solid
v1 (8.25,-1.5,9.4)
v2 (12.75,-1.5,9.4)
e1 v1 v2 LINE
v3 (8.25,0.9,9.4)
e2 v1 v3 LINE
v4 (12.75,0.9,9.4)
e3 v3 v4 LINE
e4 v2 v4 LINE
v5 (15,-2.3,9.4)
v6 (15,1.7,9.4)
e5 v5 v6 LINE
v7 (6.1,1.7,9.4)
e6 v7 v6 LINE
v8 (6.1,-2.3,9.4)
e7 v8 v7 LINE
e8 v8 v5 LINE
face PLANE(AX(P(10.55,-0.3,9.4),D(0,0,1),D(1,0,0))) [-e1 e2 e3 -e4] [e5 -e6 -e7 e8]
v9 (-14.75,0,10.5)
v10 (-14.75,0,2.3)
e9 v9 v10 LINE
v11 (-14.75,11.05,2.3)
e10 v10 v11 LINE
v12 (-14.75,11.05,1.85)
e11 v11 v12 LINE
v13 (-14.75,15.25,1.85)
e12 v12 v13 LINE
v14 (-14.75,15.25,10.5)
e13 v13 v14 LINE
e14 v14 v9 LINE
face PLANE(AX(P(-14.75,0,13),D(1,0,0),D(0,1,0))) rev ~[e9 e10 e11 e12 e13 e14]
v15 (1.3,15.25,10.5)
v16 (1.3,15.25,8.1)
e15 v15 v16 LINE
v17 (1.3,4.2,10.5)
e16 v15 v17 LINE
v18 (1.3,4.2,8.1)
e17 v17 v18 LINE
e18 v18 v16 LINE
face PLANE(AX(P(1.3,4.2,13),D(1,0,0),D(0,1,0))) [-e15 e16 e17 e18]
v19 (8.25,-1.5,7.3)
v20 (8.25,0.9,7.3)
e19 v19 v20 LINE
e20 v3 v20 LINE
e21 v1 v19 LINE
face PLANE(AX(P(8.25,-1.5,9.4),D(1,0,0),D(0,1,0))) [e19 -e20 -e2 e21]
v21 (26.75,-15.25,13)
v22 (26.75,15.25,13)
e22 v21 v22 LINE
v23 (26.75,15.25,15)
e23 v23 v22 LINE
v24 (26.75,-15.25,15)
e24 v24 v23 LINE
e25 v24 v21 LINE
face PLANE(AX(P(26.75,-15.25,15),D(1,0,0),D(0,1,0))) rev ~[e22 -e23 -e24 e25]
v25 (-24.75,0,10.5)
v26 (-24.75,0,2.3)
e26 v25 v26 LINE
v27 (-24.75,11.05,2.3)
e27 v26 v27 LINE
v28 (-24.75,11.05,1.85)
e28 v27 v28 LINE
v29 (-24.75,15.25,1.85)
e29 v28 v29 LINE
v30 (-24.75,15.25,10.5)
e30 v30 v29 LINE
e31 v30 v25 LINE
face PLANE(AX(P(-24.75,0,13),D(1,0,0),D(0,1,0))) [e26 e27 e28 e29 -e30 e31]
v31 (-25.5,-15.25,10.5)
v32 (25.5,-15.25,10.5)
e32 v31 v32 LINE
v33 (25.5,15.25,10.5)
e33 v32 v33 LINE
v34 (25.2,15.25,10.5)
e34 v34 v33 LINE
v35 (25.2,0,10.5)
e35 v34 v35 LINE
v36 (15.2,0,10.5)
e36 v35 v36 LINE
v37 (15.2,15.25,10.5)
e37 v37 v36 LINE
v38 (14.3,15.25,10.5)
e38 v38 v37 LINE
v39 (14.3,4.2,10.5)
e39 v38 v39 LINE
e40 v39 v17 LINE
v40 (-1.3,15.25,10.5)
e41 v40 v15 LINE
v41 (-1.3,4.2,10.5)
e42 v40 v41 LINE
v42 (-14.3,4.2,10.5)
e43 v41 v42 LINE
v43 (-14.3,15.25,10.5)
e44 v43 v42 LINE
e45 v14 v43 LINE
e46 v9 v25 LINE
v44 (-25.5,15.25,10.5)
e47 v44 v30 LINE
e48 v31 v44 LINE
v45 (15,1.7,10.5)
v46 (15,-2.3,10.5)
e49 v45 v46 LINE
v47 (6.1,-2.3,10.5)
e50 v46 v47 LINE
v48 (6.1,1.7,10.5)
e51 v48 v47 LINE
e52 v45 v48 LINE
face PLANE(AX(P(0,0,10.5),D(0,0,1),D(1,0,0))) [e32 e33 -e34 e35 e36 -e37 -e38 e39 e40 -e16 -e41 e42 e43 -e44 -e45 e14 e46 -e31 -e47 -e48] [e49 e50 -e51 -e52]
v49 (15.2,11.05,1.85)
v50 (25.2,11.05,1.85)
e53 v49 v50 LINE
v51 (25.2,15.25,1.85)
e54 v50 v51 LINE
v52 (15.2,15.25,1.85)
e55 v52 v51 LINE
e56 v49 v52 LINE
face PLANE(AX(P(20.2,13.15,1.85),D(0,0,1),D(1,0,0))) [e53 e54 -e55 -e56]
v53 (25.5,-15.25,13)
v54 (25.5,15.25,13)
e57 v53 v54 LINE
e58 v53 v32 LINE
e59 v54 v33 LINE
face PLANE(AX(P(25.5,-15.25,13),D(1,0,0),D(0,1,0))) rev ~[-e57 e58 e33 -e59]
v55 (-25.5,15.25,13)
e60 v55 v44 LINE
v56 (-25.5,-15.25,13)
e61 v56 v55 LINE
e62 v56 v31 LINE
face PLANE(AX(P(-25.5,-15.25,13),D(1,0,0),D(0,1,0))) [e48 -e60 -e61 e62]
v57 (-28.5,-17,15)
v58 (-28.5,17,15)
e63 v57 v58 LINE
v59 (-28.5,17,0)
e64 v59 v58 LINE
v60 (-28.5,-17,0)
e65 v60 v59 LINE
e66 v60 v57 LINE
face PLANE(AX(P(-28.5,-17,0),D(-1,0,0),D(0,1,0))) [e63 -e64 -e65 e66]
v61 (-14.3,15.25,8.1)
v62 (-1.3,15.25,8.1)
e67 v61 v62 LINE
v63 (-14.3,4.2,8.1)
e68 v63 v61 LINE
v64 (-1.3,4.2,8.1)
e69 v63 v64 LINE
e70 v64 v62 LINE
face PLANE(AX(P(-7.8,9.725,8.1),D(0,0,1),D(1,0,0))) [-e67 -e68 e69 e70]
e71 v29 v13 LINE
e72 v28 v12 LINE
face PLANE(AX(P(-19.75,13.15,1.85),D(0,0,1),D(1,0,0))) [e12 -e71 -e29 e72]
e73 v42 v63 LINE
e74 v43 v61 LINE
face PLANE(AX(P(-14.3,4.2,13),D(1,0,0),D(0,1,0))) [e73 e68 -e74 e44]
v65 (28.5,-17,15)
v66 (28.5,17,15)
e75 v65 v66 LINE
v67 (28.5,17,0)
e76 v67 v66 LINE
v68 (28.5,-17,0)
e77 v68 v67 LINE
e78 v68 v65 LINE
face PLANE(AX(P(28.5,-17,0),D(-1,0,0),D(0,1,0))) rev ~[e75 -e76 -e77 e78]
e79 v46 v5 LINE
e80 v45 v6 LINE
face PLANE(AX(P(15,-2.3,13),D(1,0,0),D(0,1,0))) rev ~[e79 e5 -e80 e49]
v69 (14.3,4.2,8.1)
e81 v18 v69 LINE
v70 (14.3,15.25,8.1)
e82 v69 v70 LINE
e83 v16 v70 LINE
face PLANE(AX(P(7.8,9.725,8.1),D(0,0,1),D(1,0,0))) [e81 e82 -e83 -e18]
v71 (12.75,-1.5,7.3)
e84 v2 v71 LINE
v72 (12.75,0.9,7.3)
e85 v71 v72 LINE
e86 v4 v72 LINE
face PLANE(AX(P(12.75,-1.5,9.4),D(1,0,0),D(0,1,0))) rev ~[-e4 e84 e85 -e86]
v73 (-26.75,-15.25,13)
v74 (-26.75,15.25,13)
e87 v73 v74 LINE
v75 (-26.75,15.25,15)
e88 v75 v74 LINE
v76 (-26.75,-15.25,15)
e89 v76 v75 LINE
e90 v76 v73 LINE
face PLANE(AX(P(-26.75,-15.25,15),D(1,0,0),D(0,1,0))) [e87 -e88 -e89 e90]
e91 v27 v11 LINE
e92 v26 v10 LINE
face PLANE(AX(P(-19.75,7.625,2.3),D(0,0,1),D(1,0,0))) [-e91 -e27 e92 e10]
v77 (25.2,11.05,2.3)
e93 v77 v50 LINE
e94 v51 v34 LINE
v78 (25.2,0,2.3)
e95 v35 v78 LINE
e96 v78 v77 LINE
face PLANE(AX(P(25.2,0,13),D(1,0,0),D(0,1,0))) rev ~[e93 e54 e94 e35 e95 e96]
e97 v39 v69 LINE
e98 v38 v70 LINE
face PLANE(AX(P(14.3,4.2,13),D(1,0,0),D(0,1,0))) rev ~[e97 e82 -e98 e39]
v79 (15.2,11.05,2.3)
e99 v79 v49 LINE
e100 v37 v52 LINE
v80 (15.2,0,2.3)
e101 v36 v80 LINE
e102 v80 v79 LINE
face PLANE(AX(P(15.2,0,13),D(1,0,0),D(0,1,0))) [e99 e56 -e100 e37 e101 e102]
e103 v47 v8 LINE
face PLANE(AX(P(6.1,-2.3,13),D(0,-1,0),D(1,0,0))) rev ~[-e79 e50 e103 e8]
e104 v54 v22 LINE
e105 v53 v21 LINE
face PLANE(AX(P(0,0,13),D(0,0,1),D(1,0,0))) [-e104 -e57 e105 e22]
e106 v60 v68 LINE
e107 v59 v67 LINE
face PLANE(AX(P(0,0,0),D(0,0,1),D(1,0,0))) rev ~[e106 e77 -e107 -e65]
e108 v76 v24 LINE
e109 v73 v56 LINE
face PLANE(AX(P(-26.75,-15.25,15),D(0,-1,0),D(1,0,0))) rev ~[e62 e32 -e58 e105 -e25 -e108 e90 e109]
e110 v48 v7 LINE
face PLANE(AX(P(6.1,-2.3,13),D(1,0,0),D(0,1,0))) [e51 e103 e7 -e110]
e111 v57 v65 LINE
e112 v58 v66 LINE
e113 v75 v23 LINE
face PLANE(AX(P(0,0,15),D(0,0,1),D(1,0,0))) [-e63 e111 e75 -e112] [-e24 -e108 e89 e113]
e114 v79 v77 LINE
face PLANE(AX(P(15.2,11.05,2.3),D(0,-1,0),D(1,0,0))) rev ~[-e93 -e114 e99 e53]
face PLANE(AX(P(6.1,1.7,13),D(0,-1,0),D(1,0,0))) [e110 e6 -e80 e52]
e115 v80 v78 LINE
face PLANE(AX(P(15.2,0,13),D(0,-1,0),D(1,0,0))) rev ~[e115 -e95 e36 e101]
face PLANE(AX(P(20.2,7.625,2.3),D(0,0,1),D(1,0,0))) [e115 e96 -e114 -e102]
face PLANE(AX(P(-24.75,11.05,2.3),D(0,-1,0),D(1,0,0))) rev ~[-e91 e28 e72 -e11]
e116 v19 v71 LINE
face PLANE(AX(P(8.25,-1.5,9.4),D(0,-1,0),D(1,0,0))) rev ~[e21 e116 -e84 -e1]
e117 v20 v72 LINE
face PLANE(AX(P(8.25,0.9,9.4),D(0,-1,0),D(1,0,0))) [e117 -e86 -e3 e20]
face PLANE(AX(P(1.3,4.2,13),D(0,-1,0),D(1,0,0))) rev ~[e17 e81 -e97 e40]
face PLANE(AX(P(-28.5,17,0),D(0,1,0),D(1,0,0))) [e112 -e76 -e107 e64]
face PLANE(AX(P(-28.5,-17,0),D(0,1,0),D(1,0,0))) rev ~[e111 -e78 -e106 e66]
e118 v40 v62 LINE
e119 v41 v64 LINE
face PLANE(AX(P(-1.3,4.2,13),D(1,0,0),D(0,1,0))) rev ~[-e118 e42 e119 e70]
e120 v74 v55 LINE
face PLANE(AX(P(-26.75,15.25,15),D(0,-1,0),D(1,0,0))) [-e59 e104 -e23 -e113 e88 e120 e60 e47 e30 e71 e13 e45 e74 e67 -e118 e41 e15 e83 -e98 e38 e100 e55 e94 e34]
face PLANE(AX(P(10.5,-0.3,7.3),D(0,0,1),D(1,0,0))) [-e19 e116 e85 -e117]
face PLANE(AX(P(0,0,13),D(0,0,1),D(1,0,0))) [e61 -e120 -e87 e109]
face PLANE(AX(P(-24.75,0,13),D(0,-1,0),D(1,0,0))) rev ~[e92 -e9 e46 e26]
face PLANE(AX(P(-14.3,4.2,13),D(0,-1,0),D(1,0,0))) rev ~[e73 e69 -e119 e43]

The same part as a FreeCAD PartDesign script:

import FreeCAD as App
import Part
import Sketcher
from FreeCAD import Vector
Q = App.Units.Quantity

doc = App.newDocument("Part")
body = doc.addObject("PartDesign::Body", "Body")

sketch1 = body.newObject("Sketcher::SketchObject", "Sketch")
sketch1.AttachmentSupport = (doc.getObject("XY_Plane"), [""])
sketch1.MapMode = "FlatFace"
sketch1.addGeometry(Part.LineSegment(Vector(-28.5, 17, 0), Vector(-28.5, -17, 0)), False)
sketch1.addGeometry(Part.LineSegment(Vector(-28.5, -17, 0), Vector(28.5, -17, 0)), False)
sketch1.addGeometry(Part.LineSegment(Vector(28.5, -17, 0), Vector(28.5, 17, 0)), False)
sketch1.addGeometry(Part.LineSegment(Vector(28.5, 17, 0), Vector(-28.5, 17, 0)), False)
sketch1.addConstraint(Sketcher.Constraint("Coincident", 0, 2, 1, 1))
sketch1.addConstraint(Sketcher.Constraint("Coincident", 1, 2, 2, 1))
sketch1.addConstraint(Sketcher.Constraint("Coincident", 2, 2, 3, 1))
sketch1.addConstraint(Sketcher.Constraint("Coincident", 3, 2, 0, 1))
sketch1.addConstraint(Sketcher.Constraint("Vertical", 0))
sketch1.addConstraint(Sketcher.Constraint("Horizontal", 1))
sketch1.addConstraint(Sketcher.Constraint("Vertical", 2))
sketch1.addConstraint(Sketcher.Constraint("Horizontal", 3))
sketch1.addConstraint(Sketcher.Constraint("Symmetric", 0, 2, 2, 2, -1, 1))
sketch1.addConstraint(Sketcher.Constraint("DistanceX", 1, 1, 1, 2, Q("57 mm")))
sketch1.addConstraint(Sketcher.Constraint("DistanceY", 0, 2, 0, 1, Q("34 mm")))
pad1 = body.newObject("PartDesign::Pad", "Pad")
pad1.Profile = sketch1
pad1.Length = 15

sketch2 = body.newObject("Sketcher::SketchObject", "Sketch001")
sketch2.AttachmentSupport = (doc.getObject("XY_Plane"), [""])
sketch2.MapMode = "FlatFace"
sketch2.AttachmentOffset = App.Placement(Vector(0, 0, 15), App.Rotation())
sketch2.addGeometry(Part.LineSegment(Vector(-26.75, 15.25, 0), Vector(-26.75, -15.25, 0)), False)
sketch2.addGeometry(Part.LineSegment(Vector(-26.75, -15.25, 0), Vector(26.75, -15.25, 0)), False)
sketch2.addGeometry(Part.LineSegment(Vector(26.75, -15.25, 0), Vector(26.75, 15.25, 0)), False)
sketch2.addGeometry(Part.LineSegment(Vector(26.75, 15.25, 0), Vector(-26.75, 15.25, 0)), False)
sketch2.addConstraint(Sketcher.Constraint("Coincident", 0, 2, 1, 1))
sketch2.addConstraint(Sketcher.Constraint("Coincident", 1, 2, 2, 1))
sketch2.addConstraint(Sketcher.Constraint("Coincident", 2, 2, 3, 1))
sketch2.addConstraint(Sketcher.Constraint("Coincident", 3, 2, 0, 1))
sketch2.addConstraint(Sketcher.Constraint("Vertical", 0))
sketch2.addConstraint(Sketcher.Constraint("Horizontal", 1))
sketch2.addConstraint(Sketcher.Constraint("Vertical", 2))
sketch2.addConstraint(Sketcher.Constraint("Horizontal", 3))
sketch2.addConstraint(Sketcher.Constraint("Symmetric", 0, 2, 2, 2, -1, 1))
sketch2.addConstraint(Sketcher.Constraint("DistanceX", 1, 1, 1, 2, Q("53.5 mm")))
sketch2.addConstraint(Sketcher.Constraint("DistanceY", 0, 2, 0, 1, Q("30.5 mm")))
pocket1 = body.newObject("PartDesign::Pocket", "Pocket")
pocket1.Profile = sketch2
pocket1.Length = 2

sketch3 = body.newObject("Sketcher::SketchObject", "Sketch002")
sketch3.AttachmentSupport = (doc.getObject("XY_Plane"), [""])
sketch3.MapMode = "FlatFace"
sketch3.AttachmentOffset = App.Placement(Vector(0, 0, 13), App.Rotation())
sketch3.addGeometry(Part.LineSegment(Vector(-24.75, 15.25, 0), Vector(-24.75, 0, 0)), False)
sketch3.addGeometry(Part.LineSegment(Vector(-24.75, 0, 0), Vector(-14.75, 0, 0)), False)
sketch3.addGeometry(Part.LineSegment(Vector(-14.75, 0, 0), Vector(-14.75, 15.25, 0)), False)
sketch3.addGeometry(Part.LineSegment(Vector(-14.75, 15.25, 0), Vector(-24.75, 15.25, 0)), False)
sketch3.addGeometry(Part.LineSegment(Vector(15.2, 15.25, 0), Vector(15.2, 0, 0)), False)
sketch3.addGeometry(Part.LineSegment(Vector(15.2, 0, 0), Vector(25.2, 0, 0)), False)
sketch3.addGeometry(Part.LineSegment(Vector(25.2, 0, 0), Vector(25.2, 15.25, 0)), False)
sketch3.addGeometry(Part.LineSegment(Vector(25.2, 15.25, 0), Vector(15.2, 15.25, 0)), False)
sketch3.addConstraint(Sketcher.Constraint("Coincident", 0, 2, 1, 1))
sketch3.addConstraint(Sketcher.Constraint("Coincident", 1, 2, 2, 1))
sketch3.addConstraint(Sketcher.Constraint("Coincident", 2, 2, 3, 1))
sketch3.addConstraint(Sketcher.Constraint("Coincident", 3, 2, 0, 1))
sketch3.addConstraint(Sketcher.Constraint("Coincident", 4, 2, 5, 1))
sketch3.addConstraint(Sketcher.Constraint("Coincident", 5, 2, 6, 1))
sketch3.addConstraint(Sketcher.Constraint("Coincident", 6, 2, 7, 1))
sketch3.addConstraint(Sketcher.Constraint("Coincident", 7, 2, 4, 1))
sketch3.addConstraint(Sketcher.Constraint("Vertical", 0))
sketch3.addConstraint(Sketcher.Constraint("Horizontal", 1))
sketch3.addConstraint(Sketcher.Constraint("Vertical", 2))
sketch3.addConstraint(Sketcher.Constraint("Horizontal", 3))
sketch3.addConstraint(Sketcher.Constraint("Vertical", 4))
sketch3.addConstraint(Sketcher.Constraint("Horizontal", 5))
sketch3.addConstraint(Sketcher.Constraint("Vertical", 6))
sketch3.addConstraint(Sketcher.Constraint("Horizontal", 7))
sketch3.addConstraint(Sketcher.Constraint("PointOnObject", 0, 2, -1))
sketch3.addConstraint(Sketcher.Constraint("PointOnObject", 4, 2, -1))
sketch3.addConstraint(Sketcher.Constraint("Horizontal", 3, 2, 6, 2))
sketch3.addConstraint(Sketcher.Constraint("Equal", 3, 5))
sketch3.addConstraint(Sketcher.Constraint("DistanceX", 1, 1, 1, 2, Q("10 mm")))
sketch3.addConstraint(Sketcher.Constraint("DistanceY", 0, 2, 0, 1, Q("15.25 mm")))
sketch3.addConstraint(Sketcher.Constraint("DistanceX", -1, 1, 4, 2, Q("15.2 mm")))
sketch3.addConstraint(Sketcher.Constraint("DistanceX", 0, 2, -1, 1, Q("24.75 mm")))
pocket2 = body.newObject("PartDesign::Pocket", "Pocket001")
pocket2.Profile = sketch3
pocket2.Length = 10.7

sketch4 = body.newObject("Sketcher::SketchObject", "Sketch003")
sketch4.AttachmentSupport = (doc.getObject("XY_Plane"), [""])
sketch4.MapMode = "FlatFace"
sketch4.AttachmentOffset = App.Placement(Vector(0, 0, 2.3), App.Rotation())
sketch4.addGeometry(Part.LineSegment(Vector(-24.75, 15.25, 0), Vector(-24.75, 11.05, 0)), False)
sketch4.addGeometry(Part.LineSegment(Vector(-24.75, 11.05, 0), Vector(-14.75, 11.05, 0)), False)
sketch4.addGeometry(Part.LineSegment(Vector(-14.75, 11.05, 0), Vector(-14.75, 15.25, 0)), False)
sketch4.addGeometry(Part.LineSegment(Vector(-14.75, 15.25, 0), Vector(-24.75, 15.25, 0)), False)
sketch4.addGeometry(Part.LineSegment(Vector(15.2, 15.25, 0), Vector(15.2, 11.05, 0)), False)
sketch4.addGeometry(Part.LineSegment(Vector(15.2, 11.05, 0), Vector(25.2, 11.05, 0)), False)
sketch4.addGeometry(Part.LineSegment(Vector(25.2, 11.05, 0), Vector(25.2, 15.25, 0)), False)
sketch4.addGeometry(Part.LineSegment(Vector(25.2, 15.25, 0), Vector(15.2, 15.25, 0)), False)
sketch4.addConstraint(Sketcher.Constraint("Coincident", 0, 2, 1, 1))
sketch4.addConstraint(Sketcher.Constraint("Coincident", 1, 2, 2, 1))
sketch4.addConstraint(Sketcher.Constraint("Coincident", 2, 2, 3, 1))
sketch4.addConstraint(Sketcher.Constraint("Coincident", 3, 2, 0, 1))
sketch4.addConstraint(Sketcher.Constraint("Coincident", 4, 2, 5, 1))
sketch4.addConstraint(Sketcher.Constraint("Coincident", 5, 2, 6, 1))
sketch4.addConstraint(Sketcher.Constraint("Coincident", 6, 2, 7, 1))
sketch4.addConstraint(Sketcher.Constraint("Coincident", 7, 2, 4, 1))
sketch4.addConstraint(Sketcher.Constraint("Vertical", 0))
sketch4.addConstraint(Sketcher.Constraint("Horizontal", 1))
sketch4.addConstraint(Sketcher.Constraint("Vertical", 2))
sketch4.addConstraint(Sketcher.Constraint("Horizontal", 3))
sketch4.addConstraint(Sketcher.Constraint("Vertical", 4))
sketch4.addConstraint(Sketcher.Constraint("Horizontal", 5))
sketch4.addConstraint(Sketcher.Constraint("Vertical", 6))
sketch4.addConstraint(Sketcher.Constraint("Horizontal", 7))
sketch4.addConstraint(Sketcher.Constraint("Horizontal", 1, 2, 4, 2))
sketch4.addConstraint(Sketcher.Constraint("Horizontal", 3, 2, 6, 2))
sketch4.addConstraint(Sketcher.Constraint("Equal", 3, 5))
sketch4.addConstraint(Sketcher.Constraint("DistanceX", 1, 1, 1, 2, Q("10 mm")))
sketch4.addConstraint(Sketcher.Constraint("DistanceY", 0, 2, 0, 1, Q("4.2 mm")))
sketch4.addConstraint(Sketcher.Constraint("DistanceX", -1, 1, 4, 2, Q("15.2 mm")))
sketch4.addConstraint(Sketcher.Constraint("DistanceX", 0, 2, -1, 1, Q("24.75 mm")))
sketch4.addConstraint(Sketcher.Constraint("DistanceY", -1, 1, 0, 2, Q("11.05 mm")))
pocket3 = body.newObject("PartDesign::Pocket", "Pocket002")
pocket3.Profile = sketch4
pocket3.Length = 0.45

sketch5 = body.newObject("Sketcher::SketchObject", "Sketch004")
sketch5.AttachmentSupport = (doc.getObject("XY_Plane"), [""])
sketch5.MapMode = "FlatFace"
sketch5.AttachmentOffset = App.Placement(Vector(0, 0, 13), App.Rotation())
sketch5.addGeometry(Part.LineSegment(Vector(-14.3, 15.25, 0), Vector(-14.3, 4.2, 0)), False)
sketch5.addGeometry(Part.LineSegment(Vector(-14.3, 4.2, 0), Vector(-1.3, 4.2, 0)), False)
sketch5.addGeometry(Part.LineSegment(Vector(-1.3, 4.2, 0), Vector(-1.3, 15.25, 0)), False)
sketch5.addGeometry(Part.LineSegment(Vector(-1.3, 15.25, 0), Vector(-14.3, 15.25, 0)), False)
sketch5.addGeometry(Part.LineSegment(Vector(1.3, 15.25, 0), Vector(1.3, 4.2, 0)), False)
sketch5.addGeometry(Part.LineSegment(Vector(1.3, 4.2, 0), Vector(14.3, 4.2, 0)), False)
sketch5.addGeometry(Part.LineSegment(Vector(14.3, 4.2, 0), Vector(14.3, 15.25, 0)), False)
sketch5.addGeometry(Part.LineSegment(Vector(14.3, 15.25, 0), Vector(1.3, 15.25, 0)), False)
sketch5.addConstraint(Sketcher.Constraint("Coincident", 0, 2, 1, 1))
sketch5.addConstraint(Sketcher.Constraint("Coincident", 1, 2, 2, 1))
sketch5.addConstraint(Sketcher.Constraint("Coincident", 2, 2, 3, 1))
sketch5.addConstraint(Sketcher.Constraint("Coincident", 3, 2, 0, 1))
sketch5.addConstraint(Sketcher.Constraint("Coincident", 4, 2, 5, 1))
sketch5.addConstraint(Sketcher.Constraint("Coincident", 5, 2, 6, 1))
sketch5.addConstraint(Sketcher.Constraint("Coincident", 6, 2, 7, 1))
sketch5.addConstraint(Sketcher.Constraint("Coincident", 7, 2, 4, 1))
sketch5.addConstraint(Sketcher.Constraint("Vertical", 0))
sketch5.addConstraint(Sketcher.Constraint("Horizontal", 1))
sketch5.addConstraint(Sketcher.Constraint("Vertical", 2))
sketch5.addConstraint(Sketcher.Constraint("Horizontal", 3))
sketch5.addConstraint(Sketcher.Constraint("Vertical", 4))
sketch5.addConstraint(Sketcher.Constraint("Horizontal", 5))
sketch5.addConstraint(Sketcher.Constraint("Vertical", 6))
sketch5.addConstraint(Sketcher.Constraint("Horizontal", 7))
sketch5.addConstraint(Sketcher.Constraint("Symmetric", 1, 2, 4, 2, -2))
sketch5.addConstraint(Sketcher.Constraint("Symmetric", 3, 2, 6, 2, -2))
sketch5.addConstraint(Sketcher.Constraint("DistanceX", 1, 1, 1, 2, Q("13 mm")))
sketch5.addConstraint(Sketcher.Constraint("DistanceY", 0, 2, 0, 1, Q("11.05 mm")))
sketch5.addConstraint(Sketcher.Constraint("DistanceX", 0, 2, -1, 1, Q("14.3 mm")))
sketch5.addConstraint(Sketcher.Constraint("DistanceY", -1, 1, 0, 2, Q("4.2 mm")))
pocket4 = body.newObject("PartDesign::Pocket", "Pocket003")
pocket4.Profile = sketch5
pocket4.Length = 4.9

sketch6 = body.newObject("Sketcher::SketchObject", "Sketch005")
sketch6.AttachmentSupport = (doc.getObject("XY_Plane"), [""])
sketch6.MapMode = "FlatFace"
sketch6.AttachmentOffset = App.Placement(Vector(0, 0, 13), App.Rotation())
sketch6.addGeometry(Part.LineSegment(Vector(6.1, 1.7, 0), Vector(6.1, -2.3, 0)), False)
sketch6.addGeometry(Part.LineSegment(Vector(6.1, -2.3, 0), Vector(15, -2.3, 0)), False)
sketch6.addGeometry(Part.LineSegment(Vector(15, -2.3, 0), Vector(15, 1.7, 0)), False)
sketch6.addGeometry(Part.LineSegment(Vector(15, 1.7, 0), Vector(6.1, 1.7, 0)), False)
sketch6.addConstraint(Sketcher.Constraint("Coincident", 0, 2, 1, 1))
sketch6.addConstraint(Sketcher.Constraint("Coincident", 1, 2, 2, 1))
sketch6.addConstraint(Sketcher.Constraint("Coincident", 2, 2, 3, 1))
sketch6.addConstraint(Sketcher.Constraint("Coincident", 3, 2, 0, 1))
sketch6.addConstraint(Sketcher.Constraint("Vertical", 0))
sketch6.addConstraint(Sketcher.Constraint("Horizontal", 1))
sketch6.addConstraint(Sketcher.Constraint("Vertical", 2))
sketch6.addConstraint(Sketcher.Constraint("Horizontal", 3))
sketch6.addConstraint(Sketcher.Constraint("DistanceY", 0, 2, 0, 1, Q("4 mm")))
sketch6.addConstraint(Sketcher.Constraint("DistanceX", 1, 1, 1, 2, Q("8.9 mm")))
sketch6.addConstraint(Sketcher.Constraint("DistanceX", -1, 1, 1, 2, Q("15 mm")))
sketch6.addConstraint(Sketcher.Constraint("DistanceY", 0, 2, -1, 1, Q("2.3 mm")))
pocket5 = body.newObject("PartDesign::Pocket", "Pocket004")
pocket5.Profile = sketch6
pocket5.Length = 3.6

sketch7 = body.newObject("Sketcher::SketchObject", "Sketch006")
sketch7.AttachmentSupport = (doc.getObject("XY_Plane"), [""])
sketch7.MapMode = "FlatFace"
sketch7.AttachmentOffset = App.Placement(Vector(0, 0, 9.4), App.Rotation())
sketch7.addGeometry(Part.LineSegment(Vector(8.25, 0.9, 0), Vector(8.25, -1.5, 0)), False)
sketch7.addGeometry(Part.LineSegment(Vector(8.25, -1.5, 0), Vector(12.75, -1.5, 0)), False)
sketch7.addGeometry(Part.LineSegment(Vector(12.75, -1.5, 0), Vector(12.75, 0.9, 0)), False)
sketch7.addGeometry(Part.LineSegment(Vector(12.75, 0.9, 0), Vector(8.25, 0.9, 0)), False)
sketch7.addConstraint(Sketcher.Constraint("Coincident", 0, 2, 1, 1))
sketch7.addConstraint(Sketcher.Constraint("Coincident", 1, 2, 2, 1))
sketch7.addConstraint(Sketcher.Constraint("Coincident", 2, 2, 3, 1))
sketch7.addConstraint(Sketcher.Constraint("Coincident", 3, 2, 0, 1))
sketch7.addConstraint(Sketcher.Constraint("Vertical", 0))
sketch7.addConstraint(Sketcher.Constraint("Horizontal", 1))
sketch7.addConstraint(Sketcher.Constraint("Vertical", 2))
sketch7.addConstraint(Sketcher.Constraint("Horizontal", 3))
sketch7.addConstraint(Sketcher.Constraint("DistanceX", 1, 1, 1, 2, Q("4.5 mm")))
sketch7.addConstraint(Sketcher.Constraint("DistanceY", 0, 2, 0, 1, Q("2.4 mm")))
sketch7.addConstraint(Sketcher.Constraint("DistanceY", 0, 2, -1, 1, Q("1.5 mm")))
sketch7.addConstraint(Sketcher.Constraint("DistanceX", -1, 1, 0, 2, Q("8.25 mm")))
pocket6 = body.newObject("PartDesign::Pocket", "Pocket005")
pocket6.Profile = sketch7
pocket6.Length = 2.1

sketch8 = body.newObject("Sketcher::SketchObject", "Sketch007")
sketch8.AttachmentSupport = (doc.getObject("XY_Plane"), [""])
sketch8.MapMode = "FlatFace"
sketch8.AttachmentOffset = App.Placement(Vector(0, 0, 13), App.Rotation())
sketch8.addGeometry(Part.LineSegment(Vector(-25.5, 15.25, 0), Vector(-25.5, -15.25, 0)), False)
sketch8.addGeometry(Part.LineSegment(Vector(-25.5, -15.25, 0), Vector(25.5, -15.25, 0)), False)
sketch8.addGeometry(Part.LineSegment(Vector(25.5, -15.25, 0), Vector(25.5, 15.25, 0)), False)
sketch8.addGeometry(Part.LineSegment(Vector(25.5, 15.25, 0), Vector(-25.5, 15.25, 0)), False)
sketch8.addConstraint(Sketcher.Constraint("Coincident", 0, 2, 1, 1))
sketch8.addConstraint(Sketcher.Constraint("Coincident", 1, 2, 2, 1))
sketch8.addConstraint(Sketcher.Constraint("Coincident", 2, 2, 3, 1))
sketch8.addConstraint(Sketcher.Constraint("Coincident", 3, 2, 0, 1))
sketch8.addConstraint(Sketcher.Constraint("Vertical", 0))
sketch8.addConstraint(Sketcher.Constraint("Horizontal", 1))
sketch8.addConstraint(Sketcher.Constraint("Vertical", 2))
sketch8.addConstraint(Sketcher.Constraint("Horizontal", 3))
sketch8.addConstraint(Sketcher.Constraint("Symmetric", 0, 2, 2, 2, -1, 1))
sketch8.addConstraint(Sketcher.Constraint("DistanceX", 1, 1, 1, 2, Q("51 mm")))
sketch8.addConstraint(Sketcher.Constraint("DistanceY", 0, 2, 0, 1, Q("30.5 mm")))
pocket7 = body.newObject("PartDesign::Pocket", "Pocket006")
pocket7.Profile = sketch8
pocket7.Length = 2.5

doc.recompute()
